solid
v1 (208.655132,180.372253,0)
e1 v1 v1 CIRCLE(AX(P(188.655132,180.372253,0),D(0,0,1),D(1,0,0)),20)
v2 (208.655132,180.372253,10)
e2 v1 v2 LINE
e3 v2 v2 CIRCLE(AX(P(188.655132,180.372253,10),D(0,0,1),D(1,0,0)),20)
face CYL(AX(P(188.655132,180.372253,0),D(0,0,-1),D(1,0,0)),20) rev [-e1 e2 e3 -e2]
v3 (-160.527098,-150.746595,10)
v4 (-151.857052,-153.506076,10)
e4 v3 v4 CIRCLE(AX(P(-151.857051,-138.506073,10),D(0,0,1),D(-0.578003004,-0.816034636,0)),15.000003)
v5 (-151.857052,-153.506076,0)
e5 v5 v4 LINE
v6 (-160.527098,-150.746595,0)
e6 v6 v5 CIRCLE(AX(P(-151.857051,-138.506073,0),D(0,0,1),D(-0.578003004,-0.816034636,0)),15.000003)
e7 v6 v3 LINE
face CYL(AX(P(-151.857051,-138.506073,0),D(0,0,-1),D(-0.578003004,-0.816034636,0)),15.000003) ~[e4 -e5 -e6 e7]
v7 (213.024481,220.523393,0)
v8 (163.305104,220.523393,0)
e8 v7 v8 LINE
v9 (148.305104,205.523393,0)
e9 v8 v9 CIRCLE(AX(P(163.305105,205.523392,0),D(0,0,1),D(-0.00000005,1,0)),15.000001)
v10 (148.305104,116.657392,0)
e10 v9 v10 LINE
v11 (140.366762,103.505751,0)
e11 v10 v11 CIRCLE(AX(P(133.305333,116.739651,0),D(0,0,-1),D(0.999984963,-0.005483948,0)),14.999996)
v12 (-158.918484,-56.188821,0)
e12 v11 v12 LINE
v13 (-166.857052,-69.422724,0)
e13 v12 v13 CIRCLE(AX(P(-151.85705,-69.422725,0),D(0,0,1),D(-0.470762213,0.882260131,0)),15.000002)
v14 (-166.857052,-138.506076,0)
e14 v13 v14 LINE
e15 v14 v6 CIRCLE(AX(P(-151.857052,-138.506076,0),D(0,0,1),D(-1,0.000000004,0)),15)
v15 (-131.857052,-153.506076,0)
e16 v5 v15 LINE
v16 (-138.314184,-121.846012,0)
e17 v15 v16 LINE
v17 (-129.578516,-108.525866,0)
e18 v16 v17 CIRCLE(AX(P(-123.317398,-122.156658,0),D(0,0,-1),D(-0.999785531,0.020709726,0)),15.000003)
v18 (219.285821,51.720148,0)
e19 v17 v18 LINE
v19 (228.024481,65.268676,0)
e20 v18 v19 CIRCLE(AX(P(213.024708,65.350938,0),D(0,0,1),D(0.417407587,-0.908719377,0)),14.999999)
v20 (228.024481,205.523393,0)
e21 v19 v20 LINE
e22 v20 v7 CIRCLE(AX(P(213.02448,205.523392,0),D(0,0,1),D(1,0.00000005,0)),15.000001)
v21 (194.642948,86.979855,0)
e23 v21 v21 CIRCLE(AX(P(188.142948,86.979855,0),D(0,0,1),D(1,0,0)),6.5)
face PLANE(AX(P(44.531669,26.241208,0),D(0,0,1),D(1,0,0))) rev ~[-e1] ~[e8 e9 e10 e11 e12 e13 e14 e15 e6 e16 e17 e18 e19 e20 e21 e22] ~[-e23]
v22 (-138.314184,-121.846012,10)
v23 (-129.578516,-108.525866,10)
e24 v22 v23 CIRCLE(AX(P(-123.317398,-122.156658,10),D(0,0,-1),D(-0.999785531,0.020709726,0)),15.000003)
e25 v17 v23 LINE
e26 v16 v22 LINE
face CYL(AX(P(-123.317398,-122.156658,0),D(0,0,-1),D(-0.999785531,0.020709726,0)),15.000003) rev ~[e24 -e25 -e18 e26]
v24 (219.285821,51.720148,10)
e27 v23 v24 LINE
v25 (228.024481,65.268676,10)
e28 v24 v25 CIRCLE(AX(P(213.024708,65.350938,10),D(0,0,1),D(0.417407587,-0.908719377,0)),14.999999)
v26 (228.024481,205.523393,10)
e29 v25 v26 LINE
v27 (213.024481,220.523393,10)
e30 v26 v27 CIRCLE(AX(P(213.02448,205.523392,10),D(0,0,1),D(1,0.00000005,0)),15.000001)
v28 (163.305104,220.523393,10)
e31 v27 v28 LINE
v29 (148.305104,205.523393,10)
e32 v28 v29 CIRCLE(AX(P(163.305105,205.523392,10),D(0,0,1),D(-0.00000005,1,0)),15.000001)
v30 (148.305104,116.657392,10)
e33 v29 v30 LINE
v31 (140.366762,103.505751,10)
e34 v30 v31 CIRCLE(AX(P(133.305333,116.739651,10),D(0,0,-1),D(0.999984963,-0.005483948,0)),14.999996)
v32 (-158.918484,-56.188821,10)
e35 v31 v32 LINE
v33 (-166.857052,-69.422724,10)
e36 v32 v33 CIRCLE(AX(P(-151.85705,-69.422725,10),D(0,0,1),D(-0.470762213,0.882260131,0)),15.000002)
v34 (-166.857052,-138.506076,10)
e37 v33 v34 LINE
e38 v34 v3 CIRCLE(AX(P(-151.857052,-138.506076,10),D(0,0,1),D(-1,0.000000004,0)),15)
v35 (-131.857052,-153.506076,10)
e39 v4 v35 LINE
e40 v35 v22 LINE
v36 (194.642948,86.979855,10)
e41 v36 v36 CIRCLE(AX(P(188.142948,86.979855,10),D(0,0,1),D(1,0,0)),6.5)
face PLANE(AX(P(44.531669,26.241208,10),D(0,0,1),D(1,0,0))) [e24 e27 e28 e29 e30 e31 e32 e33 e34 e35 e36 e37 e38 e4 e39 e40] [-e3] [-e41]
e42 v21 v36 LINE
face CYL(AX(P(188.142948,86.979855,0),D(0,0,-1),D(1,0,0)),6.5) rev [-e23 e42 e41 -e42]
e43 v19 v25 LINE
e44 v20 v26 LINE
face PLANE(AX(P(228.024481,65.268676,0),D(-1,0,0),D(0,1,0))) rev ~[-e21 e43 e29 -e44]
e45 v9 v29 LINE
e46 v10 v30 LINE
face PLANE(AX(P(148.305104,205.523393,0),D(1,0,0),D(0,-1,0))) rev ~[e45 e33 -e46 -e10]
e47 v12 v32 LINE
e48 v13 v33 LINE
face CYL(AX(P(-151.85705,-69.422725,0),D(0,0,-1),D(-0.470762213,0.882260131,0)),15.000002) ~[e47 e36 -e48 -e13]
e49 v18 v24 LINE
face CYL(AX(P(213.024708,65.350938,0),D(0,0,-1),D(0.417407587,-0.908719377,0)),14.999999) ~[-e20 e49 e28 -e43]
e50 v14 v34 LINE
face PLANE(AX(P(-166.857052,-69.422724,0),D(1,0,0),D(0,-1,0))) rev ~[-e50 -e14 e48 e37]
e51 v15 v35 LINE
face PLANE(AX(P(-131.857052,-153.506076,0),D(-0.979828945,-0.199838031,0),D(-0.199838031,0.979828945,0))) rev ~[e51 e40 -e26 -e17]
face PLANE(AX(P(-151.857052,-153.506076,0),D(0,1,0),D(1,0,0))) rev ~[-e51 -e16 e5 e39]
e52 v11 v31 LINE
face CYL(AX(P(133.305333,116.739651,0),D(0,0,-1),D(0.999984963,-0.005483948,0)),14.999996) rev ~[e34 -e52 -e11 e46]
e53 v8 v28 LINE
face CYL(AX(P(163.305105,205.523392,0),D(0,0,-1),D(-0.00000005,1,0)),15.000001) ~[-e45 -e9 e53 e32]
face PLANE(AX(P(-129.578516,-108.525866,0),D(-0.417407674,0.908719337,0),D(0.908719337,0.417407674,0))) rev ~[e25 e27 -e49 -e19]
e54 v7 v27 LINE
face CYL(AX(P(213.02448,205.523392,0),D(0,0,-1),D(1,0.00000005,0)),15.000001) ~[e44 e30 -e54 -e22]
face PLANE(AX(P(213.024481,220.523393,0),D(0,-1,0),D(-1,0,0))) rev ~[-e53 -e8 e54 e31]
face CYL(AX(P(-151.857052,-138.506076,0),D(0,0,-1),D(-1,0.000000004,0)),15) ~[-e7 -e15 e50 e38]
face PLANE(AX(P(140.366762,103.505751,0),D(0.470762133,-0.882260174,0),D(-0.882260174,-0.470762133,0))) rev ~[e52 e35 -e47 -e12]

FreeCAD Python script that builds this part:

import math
import FreeCAD as App
import Part
import Sketcher

doc = App.newDocument("Part")
params = doc.addObject("Spreadsheet::Sheet", "Params")
for row, (alias, value) in enumerate([
    ("sketch1_diameter", "13 mm"),
    ("sketch1_diameter2", "40 mm"),
    ("sketch1_radius", "15 mm"),
    ("sketch1_radius2", "14.999999 mm"),
    ("sketch1_radius3", "15.000001 mm"),
    ("pad1_length", "10 mm"),
], start=1):
    params.set(f"A{row}", alias)
    params.set(f"B{row}", "=" + value)
    params.setAlias(f"B{row}", alias)

body = doc.addObject("PartDesign::Body", "Body")

sketch1 = doc.addObject("Sketcher::SketchObject", "Sketch")
body.addObject(sketch1)
sketch1.AttachmentSupport = (doc.XY_Plane, [""])
sketch1.MapMode = "FlatFace"
sketch1.addGeometry(Part.LineSegment(App.Vector(140.366762, 103.505751, 0), App.Vector(-158.918484, -56.188821, 0)), False)
sketch1.addGeometry(Part.ArcOfCircle(Part.Circle(App.Vector(-151.85705, -69.422725, 0), App.Vector(0, 0, 1), 15.000002), math.radians(118.083785), math.radians(179.999996)), False)
sketch1.addGeometry(Part.LineSegment(App.Vector(-166.857052, -69.422724, 0), App.Vector(-166.857052, -138.506076, 0)), False)
sketch1.addGeometry(Part.ArcOfCircle(Part.Circle(App.Vector(-151.857052, -138.506076, 0), App.Vector(0, 0, 1), 15), math.radians(180), math.radians(234.689789)), False)
sketch1.addGeometry(Part.ArcOfCircle(Part.Circle(App.Vector(-151.857051, -138.506073, 0), App.Vector(0, 0, 1), 15.000003), math.radians(-125.310207), math.radians(-90.000003)), False)
sketch1.addGeometry(Part.LineSegment(App.Vector(-151.857052, -153.506076, 0), App.Vector(-131.857052, -153.506076, 0)), False)
sketch1.addGeometry(Part.LineSegment(App.Vector(-131.857052, -153.506076, 0), App.Vector(-138.314184, -121.846012, 0)), False)
sketch1.addGeometry(Part.ArcOfCircle(Part.Circle(App.Vector(-123.317398, -122.156658, 0), App.Vector(0, 0, 1), 15.000003), math.radians(114.671037), math.radians(178.813335)), False)
sketch1.addGeometry(Part.LineSegment(App.Vector(-129.578516, -108.525866, 0), App.Vector(219.285821, 51.720148, 0)), False)
sketch1.addGeometry(Part.ArcOfCircle(Part.Circle(App.Vector(213.024708, 65.350938, 0), App.Vector(0, 0, 1), 14.999999), math.radians(-65.328975), math.radians(-0.314218)), False)
sketch1.addGeometry(Part.LineSegment(App.Vector(228.024481, 65.268676, 0), App.Vector(228.024481, 205.523393, 0)), False)
sketch1.addGeometry(Part.ArcOfCircle(Part.Circle(App.Vector(213.02448, 205.523392, 0), App.Vector(0, 0, 1), 15.000001), math.radians(0.000003), math.radians(89.999997)), False)
sketch1.addGeometry(Part.LineSegment(App.Vector(213.024481, 220.523393, 0), App.Vector(163.305104, 220.523393, 0)), False)
sketch1.addGeometry(Part.ArcOfCircle(Part.Circle(App.Vector(163.305105, 205.523392, 0), App.Vector(0, 0, 1), 15.000001), math.radians(90.000003), math.radians(179.999997)), False)
sketch1.addGeometry(Part.LineSegment(App.Vector(148.305104, 205.523393, 0), App.Vector(148.305104, 116.657392, 0)), False)
sketch1.addGeometry(Part.ArcOfCircle(Part.Circle(App.Vector(133.305333, 116.739651, 0), App.Vector(0, 0, 1), 14.999996), math.radians(-61.916227), math.radians(-0.314209)), False)
sketch1.addGeometry(Part.Circle(App.Vector(188.142948, 86.979855, 0), App.Vector(0, 0, 1), 6.5), False)
sketch1.addGeometry(Part.Circle(App.Vector(188.655132, 180.372253, 0), App.Vector(0, 0, 1), 20), False)
sketch1.addConstraint(Sketcher.Constraint("Coincident", 0, 2, 1, 1))
sketch1.addConstraint(Sketcher.Constraint("Coincident", 1, 2, 2, 1))
sketch1.addConstraint(Sketcher.Constraint("Coincident", 2, 2, 3, 1))
sketch1.addConstraint(Sketcher.Constraint("Coincident", 3, 2, 4, 1))
sketch1.addConstraint(Sketcher.Constraint("Coincident", 4, 2, 5, 1))
sketch1.addConstraint(Sketcher.Constraint("Coincident", 5, 2, 6, 1))
sketch1.addConstraint(Sketcher.Constraint("Coincident", 6, 2, 7, 2))
sketch1.addConstraint(Sketcher.Constraint("Coincident", 7, 1, 8, 1))
sketch1.addConstraint(Sketcher.Constraint("Coincident", 8, 2, 9, 1))
sketch1.addConstraint(Sketcher.Constraint("Coincident", 9, 2, 10, 1))
sketch1.addConstraint(Sketcher.Constraint("Coincident", 10, 2, 11, 1))
sketch1.addConstraint(Sketcher.Constraint("Coincident", 11, 2, 12, 1))
sketch1.addConstraint(Sketcher.Constraint("Coincident", 12, 2, 13, 1))
sketch1.addConstraint(Sketcher.Constraint("Coincident", 13, 2, 14, 1))
sketch1.addConstraint(Sketcher.Constraint("Coincident", 14, 2, 15, 2))
sketch1.addConstraint(Sketcher.Constraint("Coincident", 15, 1, 0, 1))
sketch1.addConstraint(Sketcher.Constraint("Vertical", 2))
sketch1.addConstraint(Sketcher.Constraint("Horizontal", 5))
sketch1.addConstraint(Sketcher.Constraint("Vertical", 10))
sketch1.addConstraint(Sketcher.Constraint("Horizontal", 12))
sketch1.addConstraint(Sketcher.Constraint("Vertical", 14))
sketch1.addConstraint(Sketcher.Constraint("Coincident", 4, 3, 3, 3))
sketch1.addConstraint(Sketcher.Constraint("Diameter", 16, 13.0))
sketch1.addConstraint(Sketcher.Constraint("Diameter", 17, 40.0))
sketch1.addConstraint(Sketcher.Constraint("Radius", 3, 15.0))
sketch1.addConstraint(Sketcher.Constraint("Radius", 9, 14.999999))
sketch1.addConstraint(Sketcher.Constraint("Radius", 11, 15.000001))
sketch1.addConstraint(Sketcher.Constraint("Radius", 13, 15.000001))
sketch1.addConstraint(Sketcher.Constraint("DistanceX", 5, 1, 5, 2, 20.0))
sketch1.addConstraint(Sketcher.Constraint("DistanceX", 2, 2, 4, 2, 15.0))
sketch1.addConstraint(Sketcher.Constraint("DistanceY", 4, 2, 2, 2, 15.0))
sketch1.addConstraint(Sketcher.Constraint("DistanceX", 11, 2, 10, 2, 15.0))
sketch1.addConstraint(Sketcher.Constraint("DistanceY", 10, 2, 11, 2, 15.0))
sketch1.addConstraint(Sketcher.Constraint("DistanceX", 13, 2, 12, 2, 15.0))
sketch1.addConstraint(Sketcher.Constraint("DistanceY", 13, 2, 12, 2, 15.0))
sketch1.addConstraint(Sketcher.Constraint("DistanceY", 14, 2, 14, 1, 88.866001))
sketch1.addConstraint(Sketcher.Constraint("Radius", 1, 15.000002))
sketch1.addConstraint(Sketcher.Constraint("Radius", 7, 15.000003))
sketch1.addConstraint(Sketcher.Constraint("Radius", 15, 14.999996))
sketch1.addConstraint(Sketcher.Constraint("DistanceX", 7, 3, -1, 1, 123.317398))
sketch1.addConstraint(Sketcher.Constraint("DistanceX", 3, 2, -1, 1, 160.527098))
sketch1.addConstraint(Sketcher.Constraint("DistanceX", 15, 3, 17, 3, 55.349799))
sketch1.addConstraint(Sketcher.Constraint("DistanceY", 15, 3, 17, 3, 63.632602))
sketch1.addConstraint(Sketcher.Constraint("DistanceY", 16, 3, 17, 3, 93.392398))
sketch1.addConstraint(Sketcher.Constraint("DistanceY", 15, 1, 15, 3, 13.2339))
sketch1.addConstraint(Sketcher.Constraint("Distance", 0, 339.22561))
sketch1.addConstraint(Sketcher.Constraint("DistanceX", 12, 2, 12, 1, 49.719377))
sketch1.addConstraint(Sketcher.Constraint("DistanceY", 2, 2, 2, 1, 69.083352))
sketch1.addConstraint(Sketcher.Constraint("DistanceY", 10, 1, 10, 2, 140.254717))
sketch1.addConstraint(Sketcher.Constraint("DistanceX", 1, 3, -1, 1, 151.85705))
sketch1.addConstraint(Sketcher.Constraint("DistanceX", -1, 1, 11, 3, 213.02448))
sketch1.addConstraint(Sketcher.Constraint("DistanceY", -1, 1, 15, 3, 116.739651))
sketch1.addConstraint(Sketcher.Constraint("DistanceY", 0, 2, -1, 1, 56.188821))
sketch1.addConstraint(Sketcher.Constraint("DistanceY", 6, 2, -1, 1, 121.846012))
sketch1.addConstraint(Sketcher.Constraint("DistanceX", -1, 1, 8, 2, 219.285821))
sketch1.addConstraint(Sketcher.Constraint("DistanceY", -1, 1, 8, 2, 51.720148))
sketch1.addConstraint(Sketcher.Constraint("DistanceY", -1, 1, 14, 2, 116.657392))
sketch1.addConstraint(Sketcher.Constraint("DistanceY", 3, 3, 1, 3, 69.083351))
sketch1.addConstraint(Sketcher.Constraint("DistanceY", 3, 3, 7, 3, 16.349418))
sketch1.addConstraint(Sketcher.Constraint("DistanceX", 16, 3, 9, 3, 24.88176))
sketch1.addConstraint(Sketcher.Constraint("DistanceY", 7, 3, 7, 1, 13.630792))
sketch1.setExpression("Constraints[22]", "Params.sketch1_diameter")
sketch1.setExpression("Constraints[23]", "Params.sketch1_diameter2")
sketch1.setExpression("Constraints[24]", "Params.sketch1_radius")
sketch1.setExpression("Constraints[25]", "Params.sketch1_radius2")
sketch1.setExpression("Constraints[26]", "Params.sketch1_radius3")
pad1 = doc.addObject("PartDesign::Pad", "Pad")
body.addObject(pad1)
pad1.Profile = sketch1
pad1.setExpression("Length", "Params.pad1_length")

doc.recompute()
